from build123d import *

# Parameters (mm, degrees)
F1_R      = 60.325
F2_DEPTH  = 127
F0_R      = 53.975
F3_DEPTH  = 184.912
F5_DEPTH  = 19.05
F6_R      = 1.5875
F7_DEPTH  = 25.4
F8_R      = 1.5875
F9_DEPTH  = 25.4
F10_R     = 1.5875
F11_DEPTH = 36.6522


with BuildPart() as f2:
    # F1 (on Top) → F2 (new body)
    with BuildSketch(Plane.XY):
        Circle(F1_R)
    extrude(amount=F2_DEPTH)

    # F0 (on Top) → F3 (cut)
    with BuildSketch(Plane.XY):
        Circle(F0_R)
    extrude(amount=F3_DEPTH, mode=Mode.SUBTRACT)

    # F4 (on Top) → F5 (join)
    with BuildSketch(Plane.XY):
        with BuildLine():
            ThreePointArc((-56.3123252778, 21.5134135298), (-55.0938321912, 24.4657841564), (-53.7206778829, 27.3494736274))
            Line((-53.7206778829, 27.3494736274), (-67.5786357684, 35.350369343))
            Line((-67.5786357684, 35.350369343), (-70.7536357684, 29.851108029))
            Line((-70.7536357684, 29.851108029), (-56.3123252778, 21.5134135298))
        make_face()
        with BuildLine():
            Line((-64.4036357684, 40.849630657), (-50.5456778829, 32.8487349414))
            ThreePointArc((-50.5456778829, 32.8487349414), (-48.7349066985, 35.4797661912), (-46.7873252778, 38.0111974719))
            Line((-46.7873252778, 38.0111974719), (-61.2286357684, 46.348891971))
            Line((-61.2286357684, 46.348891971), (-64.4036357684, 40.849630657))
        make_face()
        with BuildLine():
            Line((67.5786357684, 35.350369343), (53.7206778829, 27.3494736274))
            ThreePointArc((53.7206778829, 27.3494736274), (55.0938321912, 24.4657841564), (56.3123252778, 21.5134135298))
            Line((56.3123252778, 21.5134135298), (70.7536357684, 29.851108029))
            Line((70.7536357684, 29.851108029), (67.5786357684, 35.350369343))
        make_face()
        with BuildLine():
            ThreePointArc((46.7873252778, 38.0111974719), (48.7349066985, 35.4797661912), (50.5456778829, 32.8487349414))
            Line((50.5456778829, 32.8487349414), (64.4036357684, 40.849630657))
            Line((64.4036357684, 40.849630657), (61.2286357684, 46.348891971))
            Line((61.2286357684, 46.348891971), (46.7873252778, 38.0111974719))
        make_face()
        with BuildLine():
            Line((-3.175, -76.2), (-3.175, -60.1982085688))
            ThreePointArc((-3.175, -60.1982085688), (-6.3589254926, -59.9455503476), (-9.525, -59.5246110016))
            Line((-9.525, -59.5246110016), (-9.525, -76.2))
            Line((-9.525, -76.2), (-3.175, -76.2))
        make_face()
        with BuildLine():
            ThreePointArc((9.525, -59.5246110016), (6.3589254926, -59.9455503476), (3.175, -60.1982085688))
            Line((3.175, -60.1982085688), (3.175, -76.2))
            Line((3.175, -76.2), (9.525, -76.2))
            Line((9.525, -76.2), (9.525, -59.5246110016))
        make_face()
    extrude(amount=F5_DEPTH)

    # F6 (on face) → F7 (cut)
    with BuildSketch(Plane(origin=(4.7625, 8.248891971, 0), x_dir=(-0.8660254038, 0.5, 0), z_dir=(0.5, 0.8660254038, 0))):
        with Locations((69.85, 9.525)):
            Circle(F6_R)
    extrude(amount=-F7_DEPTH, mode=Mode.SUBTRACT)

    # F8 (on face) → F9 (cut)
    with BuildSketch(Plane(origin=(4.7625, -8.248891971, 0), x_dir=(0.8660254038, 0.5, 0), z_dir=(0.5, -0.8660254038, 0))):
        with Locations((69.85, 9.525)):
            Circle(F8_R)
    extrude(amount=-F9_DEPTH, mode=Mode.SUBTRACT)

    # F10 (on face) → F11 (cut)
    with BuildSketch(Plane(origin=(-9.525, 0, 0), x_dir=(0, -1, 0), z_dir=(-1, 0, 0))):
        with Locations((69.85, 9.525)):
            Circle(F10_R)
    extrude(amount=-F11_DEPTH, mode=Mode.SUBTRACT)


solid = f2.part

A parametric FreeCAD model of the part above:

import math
import FreeCAD as App
import Part
import Sketcher
from FreeCAD import Vector
Q = App.Units.Quantity

doc = App.newDocument("Part")
body = doc.addObject("PartDesign::Body", "Body")

sketch1 = body.newObject("Sketcher::SketchObject", "Sketch")
sketch1.AttachmentSupport = (doc.getObject("XY_Plane"), [""])
sketch1.MapMode = "FlatFace"
sketch1.addGeometry(Part.Circle(Vector(0, 0, 0), Vector(0, 0, 1), 60), False)
sketch1.addConstraint(Sketcher.Constraint("Coincident", 0, 3, -1, 1))
sketch1.addConstraint(Sketcher.Constraint("Diameter", 0, Q("4.75 in")))
pad1 = body.newObject("PartDesign::Pad", "Pad")
pad1.Profile = sketch1
pad1.Length = Q("5 in")

sketch2 = body.newObject("Sketcher::SketchObject", "Sketch001")
sketch2.AttachmentSupport = (doc.getObject("XY_Plane"), [""])
sketch2.MapMode = "FlatFace"
sketch2.addGeometry(Part.Circle(Vector(0, 0, 0), Vector(0, 0, 1), 54), False)
sketch2.addConstraint(Sketcher.Constraint("Coincident", 0, 3, -1, 1))
sketch2.addConstraint(Sketcher.Constraint("Diameter", 0, Q("4.25 in")))
pocket1 = body.newObject("PartDesign::Pocket", "Pocket")
pocket1.Profile = sketch2
pocket1.Length = Q("7.28 in")
pocket1.Reversed = True

sketch3 = body.newObject("Sketcher::SketchObject", "Sketch002")
sketch3.AttachmentSupport = (doc.getObject("XY_Plane"), [""])
sketch3.MapMode = "FlatFace"
sketch3.addGeometry(Part.ArcOfCircle(Part.Circle(Vector(0, 0, 0), Vector(0, 0, 1), 60), math.radians(153.02), math.radians(159.09)), False)
sketch3.addGeometry(Part.LineSegment(Vector(-54, 27, 0), Vector(-68, 35, 0)), False)
sketch3.addGeometry(Part.LineSegment(Vector(-68, 35, 0), Vector(-71, 30, 0)), False)
sketch3.addGeometry(Part.LineSegment(Vector(-71, 30, 0), Vector(-56, 22, 0)), False)
sketch3.addGeometry(Part.LineSegment(Vector(-64, 41, 0), Vector(-51, 33, 0)), False)
sketch3.addGeometry(Part.ArcOfCircle(Part.Circle(Vector(0, 0, 0), Vector(0, 0, 1), 60), math.radians(140.91), math.radians(146.98)), False)
sketch3.addGeometry(Part.LineSegment(Vector(-47, 38, 0), Vector(-61, 46, 0)), False)
sketch3.addGeometry(Part.LineSegment(Vector(-61, 46, 0), Vector(-64, 41, 0)), False)
sketch3.addGeometry(Part.LineSegment(Vector(68, 35, 0), Vector(54, 27, 0)), False)
sketch3.addGeometry(Part.ArcOfCircle(Part.Circle(Vector(0, 0, 0), Vector(0, 0, 1), 60), math.radians(20.91), math.radians(26.98)), False)
sketch3.addGeometry(Part.LineSegment(Vector(56, 22, 0), Vector(71, 30, 0)), False)
sketch3.addGeometry(Part.LineSegment(Vector(71, 30, 0), Vector(68, 35, 0)), False)
sketch3.addGeometry(Part.ArcOfCircle(Part.Circle(Vector(0, 0, 0), Vector(0, 0, 1), 60), math.radians(33.02), math.radians(39.09)), False)
sketch3.addGeometry(Part.LineSegment(Vector(51, 33, 0), Vector(64, 41, 0)), False)
sketch3.addGeometry(Part.LineSegment(Vector(64, 41, 0), Vector(61, 46, 0)), False)
sketch3.addGeometry(Part.LineSegment(Vector(61, 46, 0), Vector(47, 38, 0)), False)
sketch3.addGeometry(Part.LineSegment(Vector(-3, -76, 0), Vector(-3, -60, 0)), False)
sketch3.addGeometry(Part.ArcOfCircle(Part.Circle(Vector(0, 0, 0), Vector(0, 0, 1), 60), math.radians(-99.09), math.radians(-93.02)), False)
sketch3.addGeometry(Part.LineSegment(Vector(-10, -60, 0), Vector(-10, -76, 0)), False)
sketch3.addGeometry(Part.LineSegment(Vector(-10, -76, 0), Vector(-3, -76, 0)), False)
sketch3.addGeometry(Part.ArcOfCircle(Part.Circle(Vector(0, 0, 0), Vector(0, 0, 1), 60), math.radians(-86.98), math.radians(-80.91)), False)
sketch3.addGeometry(Part.LineSegment(Vector(3, -60, 0), Vector(3, -76, 0)), False)
sketch3.addGeometry(Part.LineSegment(Vector(3, -76, 0), Vector(10, -76, 0)), False)
sketch3.addGeometry(Part.LineSegment(Vector(10, -76, 0), Vector(10, -60, 0)), False)
sketch3.addConstraint(Sketcher.Constraint("Coincident", 0, 1, 1, 1))
sketch3.addConstraint(Sketcher.Constraint("Coincident", 1, 2, 2, 1))
sketch3.addConstraint(Sketcher.Constraint("Coincident", 2, 2, 3, 1))
sketch3.addConstraint(Sketcher.Constraint("Coincident", 3, 2, 0, 2))
sketch3.addConstraint(Sketcher.Constraint("Coincident", 4, 2, 5, 2))
sketch3.addConstraint(Sketcher.Constraint("Coincident", 5, 1, 6, 1))
sketch3.addConstraint(Sketcher.Constraint("Coincident", 6, 2, 7, 1))
sketch3.addConstraint(Sketcher.Constraint("Coincident", 7, 2, 4, 1))
sketch3.addConstraint(Sketcher.Constraint("Coincident", 8, 2, 9, 2))
sketch3.addConstraint(Sketcher.Constraint("Coincident", 9, 1, 10, 1))
sketch3.addConstraint(Sketcher.Constraint("Coincident", 10, 2, 11, 1))
sketch3.addConstraint(Sketcher.Constraint("Coincident", 11, 2, 8, 1))
sketch3.addConstraint(Sketcher.Constraint("Coincident", 12, 1, 13, 1))
sketch3.addConstraint(Sketcher.Constraint("Coincident", 13, 2, 14, 1))
sketch3.addConstraint(Sketcher.Constraint("Coincident", 14, 2, 15, 1))
sketch3.addConstraint(Sketcher.Constraint("Coincident", 15, 2, 12, 2))
sketch3.addConstraint(Sketcher.Constraint("Coincident", 16, 2, 17, 2))
sketch3.addConstraint(Sketcher.Constraint("Coincident", 17, 1, 18, 1))
sketch3.addConstraint(Sketcher.Constraint("Coincident", 18, 2, 19, 1))
sketch3.addConstraint(Sketcher.Constraint("Coincident", 19, 2, 16, 1))
sketch3.addConstraint(Sketcher.Constraint("Coincident", 20, 1, 21, 1))
sketch3.addConstraint(Sketcher.Constraint("Coincident", 21, 2, 22, 1))
sketch3.addConstraint(Sketcher.Constraint("Coincident", 22, 2, 23, 1))
sketch3.addConstraint(Sketcher.Constraint("Coincident", 23, 2, 20, 2))
sketch3.addConstraint(Sketcher.Constraint("Vertical", 16))
sketch3.addConstraint(Sketcher.Constraint("Vertical", 18))
sketch3.addConstraint(Sketcher.Constraint("Horizontal", 19))
sketch3.addConstraint(Sketcher.Constraint("Vertical", 21))
sketch3.addConstraint(Sketcher.Constraint("Horizontal", 22))
sketch3.addConstraint(Sketcher.Constraint("Vertical", 23))
sketch3.addConstraint(Sketcher.Constraint("Coincident", 0, 3, -1, 1))
sketch3.addConstraint(Sketcher.Constraint("Coincident", 5, 3, -1, 1))
sketch3.addConstraint(Sketcher.Constraint("Coincident", 9, 3, -1, 1))
sketch3.addConstraint(Sketcher.Constraint("Coincident", 12, 3, -1, 1))
sketch3.addConstraint(Sketcher.Constraint("Coincident", 17, 3, -1, 1))
sketch3.addConstraint(Sketcher.Constraint("Coincident", 20, 3, -1, 1))
sketch3.addConstraint(Sketcher.Constraint("Equal", 0, 5))
sketch3.addConstraint(Sketcher.Constraint("Equal", 5, 9))
sketch3.addConstraint(Sketcher.Constraint("Equal", 9, 12))
sketch3.addConstraint(Sketcher.Constraint("Equal", 12, 17))
sketch3.addConstraint(Sketcher.Constraint("Equal", 17, 20))
sketch3.addConstraint(Sketcher.Constraint("Symmetric", 2, 2, 10, 2, -2))
sketch3.addConstraint(Sketcher.Constraint("Symmetric", 1, 2, 11, 2, -2))
sketch3.addConstraint(Sketcher.Constraint("Symmetric", 7, 2, 13, 2, -2))
sketch3.addConstraint(Sketcher.Constraint("Symmetric", 6, 2, 14, 2, -2))
sketch3.addConstraint(Sketcher.Constraint("Symmetric", 19, 2, 21, 2, -2))
sketch3.addConstraint(Sketcher.Constraint("Perpendicular", 1, 2))
sketch3.addConstraint(Sketcher.Constraint("Perpendicular", 2, 3))
sketch3.addConstraint(Sketcher.Constraint("Parallel", 3, 4))
sketch3.addConstraint(Sketcher.Constraint("Parallel", 4, 6))
sketch3.addConstraint(Sketcher.Constraint("Perpendicular", 6, 7))
sketch3.addConstraint(Sketcher.Constraint("Parallel", 8, 10))
sketch3.addConstraint(Sketcher.Constraint("Perpendicular", 10, 11))
sketch3.addConstraint(Sketcher.Constraint("Perpendicular", 11, 13))
sketch3.addConstraint(Sketcher.Constraint("Perpendicular", 14, 15))
sketch3.addConstraint(Sketcher.Constraint("Horizontal", 17, 1, 23, 2))
sketch3.addConstraint(Sketcher.Constraint("Equal", 1, 4))
sketch3.addConstraint(Sketcher.Constraint("Equal", 3, 6))
sketch3.addConstraint(Sketcher.Constraint("Equal", 2, 7))
sketch3.addConstraint(Sketcher.Constraint("DistanceY", 18, 2, -1, 1, Q("3 in")))
sketch3.addConstraint(Sketcher.Constraint("Angle", 1, Q("150 deg")))
sketch3.addConstraint(Sketcher.Constraint("DistanceX", 19, 1, 19, 2, Q("0.25 in")))
sketch3.addConstraint(Sketcher.Constraint("DistanceX", 17, 1, 20, 1, Q("0.5 in")))
sketch3.addConstraint(Sketcher.Constraint("Distance", 2, Q("0.25 in")))
sketch3.addConstraint(Sketcher.Constraint("DistanceX", 1, 2, 6, 2, Q("0.25 in")))
sketch3.addConstraint(Sketcher.Constraint("Radius", 0, 60.281879))
sketch3.addConstraint(Sketcher.Constraint("Distance", 1, 16.001791))
pad2 = body.newObject("PartDesign::Pad", "Pad001")
pad2.Profile = sketch3
pad2.Length = Q("0.75 in")

sketch4 = body.newObject("Sketcher::SketchObject", "Sketch003")
sketch4.Placement = App.Placement(Vector(4.7625, 8.248892, 0), App.Rotation(Vector(-0.866025404, 0.5, 0), Vector(0, 0, 1), Vector(0.5, 0.866025404, 0), "ZXY"))
sketch4.addGeometry(Part.Circle(Vector(69.9, 9.5, 0), Vector(0, 0, 1), 1.6), False)
sketch4.addConstraint(Sketcher.Constraint("Diameter", 0, Q("0.125 in")))
sketch4.addConstraint(Sketcher.Constraint("DistanceX", -1, 1, 0, 3, Q("2.75 in")))
sketch4.addConstraint(Sketcher.Constraint("DistanceY", -1, 1, 0, 3, Q("0.375 in")))
pocket2 = body.newObject("PartDesign::Pocket", "Pocket001")
pocket2.Profile = sketch4
pocket2.Length = Q("1 in")

sketch5 = body.newObject("Sketcher::SketchObject", "Sketch004")
sketch5.Placement = App.Placement(Vector(4.7625, -8.248892, 0), App.Rotation(Vector(0.866025404, 0.5, 0), Vector(0, 0, 1), Vector(0.5, -0.866025404, 0), "ZXY"))
sketch5.addGeometry(Part.Circle(Vector(69.9, 9.5, 0), Vector(0, 0, 1), 1.6), False)
sketch5.addConstraint(Sketcher.Constraint("Diameter", 0, Q("0.125 in")))
sketch5.addConstraint(Sketcher.Constraint("DistanceX", -1, 1, 0, 3, Q("2.75 in")))
sketch5.addConstraint(Sketcher.Constraint("DistanceY", -1, 1, 0, 3, Q("0.375 in")))
pocket3 = body.newObject("PartDesign::Pocket", "Pocket002")
pocket3.Profile = sketch5
pocket3.Length = Q("1 in")

sketch6 = body.newObject("Sketcher::SketchObject", "Sketch005")
sketch6.AttachmentSupport = (doc.getObject("YZ_Plane"), [""])
sketch6.MapMode = "FlatFace"
sketch6.AttachmentOffset = App.Placement(Vector(0, 0, -0.375 * 25.4), App.Rotation())
sketch6.addGeometry(Part.Circle(Vector(-69.8, 9.5, 0), Vector(0, 0, 1), 1.6), False)
sketch6.addConstraint(Sketcher.Constraint("Diameter", 0, Q("0.125 in")))
sketch6.addConstraint(Sketcher.Constraint("DistanceX", 0, 3, -1, 1, Q("2.75 in")))
sketch6.addConstraint(Sketcher.Constraint("DistanceY", -1, 1, 0, 3, Q("0.375 in")))
pocket4 = body.newObject("PartDesign::Pocket", "Pocket003")
pocket4.Profile = sketch6
pocket4.Length = Q("1.443 in")
pocket4.Reversed = True

doc.recompute()
